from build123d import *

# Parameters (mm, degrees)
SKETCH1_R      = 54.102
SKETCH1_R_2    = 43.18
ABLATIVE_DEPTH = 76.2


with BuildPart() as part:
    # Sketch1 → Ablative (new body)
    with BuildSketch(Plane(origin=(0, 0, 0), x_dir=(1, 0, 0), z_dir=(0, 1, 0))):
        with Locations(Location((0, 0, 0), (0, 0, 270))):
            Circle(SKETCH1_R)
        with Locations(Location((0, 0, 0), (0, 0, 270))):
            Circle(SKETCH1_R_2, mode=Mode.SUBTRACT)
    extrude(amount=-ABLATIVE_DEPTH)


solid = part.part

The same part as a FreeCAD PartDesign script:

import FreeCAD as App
import Part
import Sketcher

V = App.Vector
Q = App.Units.Quantity

doc = App.newDocument("Part")
body = doc.addObject("PartDesign::Body", "Body")

sketch1 = body.newObject("Sketcher::SketchObject", "Sketch")
sketch1.AttachmentSupport = (doc.getObject("XZ_Plane"), [""])
sketch1.MapMode = "FlatFace"
sketch1.addGeometry(Part.Circle(V(0, 0, 0), V(0, 0, 1), 54), False)
sketch1.addGeometry(Part.Circle(V(0, 0, 0), V(0, 0, 1), 43), False)
sketch1.addConstraint(Sketcher.Constraint("Coincident", 0, 3, -1, 1))
sketch1.addConstraint(Sketcher.Constraint("Coincident", 1, 3, -1, 1))
sketch1.addConstraint(Sketcher.Constraint("Diameter", 1, Q("3.4 in")))
sketch1.addConstraint(Sketcher.Constraint("Diameter", 0, Q("4.26 in")))
pad1 = body.newObject("PartDesign::Pad", "Pad")
pad1.Profile = sketch1
pad1.Length = Q("3 in")

doc.recompute()
